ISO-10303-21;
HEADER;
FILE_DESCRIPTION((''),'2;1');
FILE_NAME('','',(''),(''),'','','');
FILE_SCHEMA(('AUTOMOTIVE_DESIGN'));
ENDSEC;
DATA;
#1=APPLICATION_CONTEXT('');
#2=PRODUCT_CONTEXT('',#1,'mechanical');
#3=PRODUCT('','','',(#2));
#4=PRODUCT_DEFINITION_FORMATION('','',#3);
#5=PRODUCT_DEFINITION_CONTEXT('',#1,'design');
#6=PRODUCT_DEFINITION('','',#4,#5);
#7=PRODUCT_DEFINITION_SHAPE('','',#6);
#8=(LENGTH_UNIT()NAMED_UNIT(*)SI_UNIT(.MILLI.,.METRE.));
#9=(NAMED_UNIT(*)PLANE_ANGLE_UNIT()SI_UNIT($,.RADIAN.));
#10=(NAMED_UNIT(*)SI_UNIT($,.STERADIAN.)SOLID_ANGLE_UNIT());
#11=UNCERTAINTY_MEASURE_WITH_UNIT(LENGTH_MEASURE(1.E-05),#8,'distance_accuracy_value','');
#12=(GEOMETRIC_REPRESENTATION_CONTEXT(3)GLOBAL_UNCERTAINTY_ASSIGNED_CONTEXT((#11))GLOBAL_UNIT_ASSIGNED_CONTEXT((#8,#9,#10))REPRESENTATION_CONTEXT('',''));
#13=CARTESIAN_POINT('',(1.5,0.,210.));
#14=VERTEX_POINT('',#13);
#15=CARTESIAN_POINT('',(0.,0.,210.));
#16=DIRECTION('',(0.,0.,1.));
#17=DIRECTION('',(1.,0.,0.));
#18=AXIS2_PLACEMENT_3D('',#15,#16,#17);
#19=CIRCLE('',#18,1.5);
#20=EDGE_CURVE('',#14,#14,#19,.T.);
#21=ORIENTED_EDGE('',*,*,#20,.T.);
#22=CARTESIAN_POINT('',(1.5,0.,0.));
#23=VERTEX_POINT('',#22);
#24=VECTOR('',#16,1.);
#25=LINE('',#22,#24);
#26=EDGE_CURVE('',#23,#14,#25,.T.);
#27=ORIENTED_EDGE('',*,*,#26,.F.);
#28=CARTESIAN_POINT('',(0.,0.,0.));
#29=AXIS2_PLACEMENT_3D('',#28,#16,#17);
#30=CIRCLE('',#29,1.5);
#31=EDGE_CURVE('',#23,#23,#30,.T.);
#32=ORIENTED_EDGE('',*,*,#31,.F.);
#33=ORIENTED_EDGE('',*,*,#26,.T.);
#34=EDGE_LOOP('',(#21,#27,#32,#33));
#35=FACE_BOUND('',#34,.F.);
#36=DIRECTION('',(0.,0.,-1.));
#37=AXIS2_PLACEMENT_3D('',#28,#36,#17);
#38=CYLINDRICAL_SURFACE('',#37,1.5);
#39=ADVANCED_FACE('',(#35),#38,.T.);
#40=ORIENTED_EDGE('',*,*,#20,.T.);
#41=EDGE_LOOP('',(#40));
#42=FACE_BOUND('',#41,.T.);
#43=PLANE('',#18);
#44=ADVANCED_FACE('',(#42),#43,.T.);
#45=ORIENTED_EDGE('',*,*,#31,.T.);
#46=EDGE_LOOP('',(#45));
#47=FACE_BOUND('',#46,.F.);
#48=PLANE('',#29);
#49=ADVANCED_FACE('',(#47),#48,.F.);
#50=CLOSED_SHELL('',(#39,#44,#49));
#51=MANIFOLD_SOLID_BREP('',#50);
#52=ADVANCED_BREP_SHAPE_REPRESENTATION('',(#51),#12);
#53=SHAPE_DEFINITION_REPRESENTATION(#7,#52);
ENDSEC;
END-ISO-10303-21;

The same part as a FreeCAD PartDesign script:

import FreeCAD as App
import Part
import Sketcher

doc = App.newDocument("Part")
body = doc.addObject("PartDesign::Body", "Body")

# Sketch on XY plane
sketch1 = body.newObject("Sketcher::SketchObject", "Sketch")
sketch1.AttachmentSupport = (doc.getObject("XY_Plane"), [""])
sketch1.MapMode = "FlatFace"
sketch1.addGeometry(Part.Circle(App.Vector(0, 0, 0), App.Vector(0, 0, 1), 1.5), False)
sketch1.addConstraint(Sketcher.Constraint("Coincident", 0, 3, -1, 1))
sketch1.addConstraint(Sketcher.Constraint("Diameter", 0, 3.0))
pad1 = body.newObject("PartDesign::Pad", "Pad")
pad1.Profile = sketch1
pad1.Length = 210

doc.recompute()
